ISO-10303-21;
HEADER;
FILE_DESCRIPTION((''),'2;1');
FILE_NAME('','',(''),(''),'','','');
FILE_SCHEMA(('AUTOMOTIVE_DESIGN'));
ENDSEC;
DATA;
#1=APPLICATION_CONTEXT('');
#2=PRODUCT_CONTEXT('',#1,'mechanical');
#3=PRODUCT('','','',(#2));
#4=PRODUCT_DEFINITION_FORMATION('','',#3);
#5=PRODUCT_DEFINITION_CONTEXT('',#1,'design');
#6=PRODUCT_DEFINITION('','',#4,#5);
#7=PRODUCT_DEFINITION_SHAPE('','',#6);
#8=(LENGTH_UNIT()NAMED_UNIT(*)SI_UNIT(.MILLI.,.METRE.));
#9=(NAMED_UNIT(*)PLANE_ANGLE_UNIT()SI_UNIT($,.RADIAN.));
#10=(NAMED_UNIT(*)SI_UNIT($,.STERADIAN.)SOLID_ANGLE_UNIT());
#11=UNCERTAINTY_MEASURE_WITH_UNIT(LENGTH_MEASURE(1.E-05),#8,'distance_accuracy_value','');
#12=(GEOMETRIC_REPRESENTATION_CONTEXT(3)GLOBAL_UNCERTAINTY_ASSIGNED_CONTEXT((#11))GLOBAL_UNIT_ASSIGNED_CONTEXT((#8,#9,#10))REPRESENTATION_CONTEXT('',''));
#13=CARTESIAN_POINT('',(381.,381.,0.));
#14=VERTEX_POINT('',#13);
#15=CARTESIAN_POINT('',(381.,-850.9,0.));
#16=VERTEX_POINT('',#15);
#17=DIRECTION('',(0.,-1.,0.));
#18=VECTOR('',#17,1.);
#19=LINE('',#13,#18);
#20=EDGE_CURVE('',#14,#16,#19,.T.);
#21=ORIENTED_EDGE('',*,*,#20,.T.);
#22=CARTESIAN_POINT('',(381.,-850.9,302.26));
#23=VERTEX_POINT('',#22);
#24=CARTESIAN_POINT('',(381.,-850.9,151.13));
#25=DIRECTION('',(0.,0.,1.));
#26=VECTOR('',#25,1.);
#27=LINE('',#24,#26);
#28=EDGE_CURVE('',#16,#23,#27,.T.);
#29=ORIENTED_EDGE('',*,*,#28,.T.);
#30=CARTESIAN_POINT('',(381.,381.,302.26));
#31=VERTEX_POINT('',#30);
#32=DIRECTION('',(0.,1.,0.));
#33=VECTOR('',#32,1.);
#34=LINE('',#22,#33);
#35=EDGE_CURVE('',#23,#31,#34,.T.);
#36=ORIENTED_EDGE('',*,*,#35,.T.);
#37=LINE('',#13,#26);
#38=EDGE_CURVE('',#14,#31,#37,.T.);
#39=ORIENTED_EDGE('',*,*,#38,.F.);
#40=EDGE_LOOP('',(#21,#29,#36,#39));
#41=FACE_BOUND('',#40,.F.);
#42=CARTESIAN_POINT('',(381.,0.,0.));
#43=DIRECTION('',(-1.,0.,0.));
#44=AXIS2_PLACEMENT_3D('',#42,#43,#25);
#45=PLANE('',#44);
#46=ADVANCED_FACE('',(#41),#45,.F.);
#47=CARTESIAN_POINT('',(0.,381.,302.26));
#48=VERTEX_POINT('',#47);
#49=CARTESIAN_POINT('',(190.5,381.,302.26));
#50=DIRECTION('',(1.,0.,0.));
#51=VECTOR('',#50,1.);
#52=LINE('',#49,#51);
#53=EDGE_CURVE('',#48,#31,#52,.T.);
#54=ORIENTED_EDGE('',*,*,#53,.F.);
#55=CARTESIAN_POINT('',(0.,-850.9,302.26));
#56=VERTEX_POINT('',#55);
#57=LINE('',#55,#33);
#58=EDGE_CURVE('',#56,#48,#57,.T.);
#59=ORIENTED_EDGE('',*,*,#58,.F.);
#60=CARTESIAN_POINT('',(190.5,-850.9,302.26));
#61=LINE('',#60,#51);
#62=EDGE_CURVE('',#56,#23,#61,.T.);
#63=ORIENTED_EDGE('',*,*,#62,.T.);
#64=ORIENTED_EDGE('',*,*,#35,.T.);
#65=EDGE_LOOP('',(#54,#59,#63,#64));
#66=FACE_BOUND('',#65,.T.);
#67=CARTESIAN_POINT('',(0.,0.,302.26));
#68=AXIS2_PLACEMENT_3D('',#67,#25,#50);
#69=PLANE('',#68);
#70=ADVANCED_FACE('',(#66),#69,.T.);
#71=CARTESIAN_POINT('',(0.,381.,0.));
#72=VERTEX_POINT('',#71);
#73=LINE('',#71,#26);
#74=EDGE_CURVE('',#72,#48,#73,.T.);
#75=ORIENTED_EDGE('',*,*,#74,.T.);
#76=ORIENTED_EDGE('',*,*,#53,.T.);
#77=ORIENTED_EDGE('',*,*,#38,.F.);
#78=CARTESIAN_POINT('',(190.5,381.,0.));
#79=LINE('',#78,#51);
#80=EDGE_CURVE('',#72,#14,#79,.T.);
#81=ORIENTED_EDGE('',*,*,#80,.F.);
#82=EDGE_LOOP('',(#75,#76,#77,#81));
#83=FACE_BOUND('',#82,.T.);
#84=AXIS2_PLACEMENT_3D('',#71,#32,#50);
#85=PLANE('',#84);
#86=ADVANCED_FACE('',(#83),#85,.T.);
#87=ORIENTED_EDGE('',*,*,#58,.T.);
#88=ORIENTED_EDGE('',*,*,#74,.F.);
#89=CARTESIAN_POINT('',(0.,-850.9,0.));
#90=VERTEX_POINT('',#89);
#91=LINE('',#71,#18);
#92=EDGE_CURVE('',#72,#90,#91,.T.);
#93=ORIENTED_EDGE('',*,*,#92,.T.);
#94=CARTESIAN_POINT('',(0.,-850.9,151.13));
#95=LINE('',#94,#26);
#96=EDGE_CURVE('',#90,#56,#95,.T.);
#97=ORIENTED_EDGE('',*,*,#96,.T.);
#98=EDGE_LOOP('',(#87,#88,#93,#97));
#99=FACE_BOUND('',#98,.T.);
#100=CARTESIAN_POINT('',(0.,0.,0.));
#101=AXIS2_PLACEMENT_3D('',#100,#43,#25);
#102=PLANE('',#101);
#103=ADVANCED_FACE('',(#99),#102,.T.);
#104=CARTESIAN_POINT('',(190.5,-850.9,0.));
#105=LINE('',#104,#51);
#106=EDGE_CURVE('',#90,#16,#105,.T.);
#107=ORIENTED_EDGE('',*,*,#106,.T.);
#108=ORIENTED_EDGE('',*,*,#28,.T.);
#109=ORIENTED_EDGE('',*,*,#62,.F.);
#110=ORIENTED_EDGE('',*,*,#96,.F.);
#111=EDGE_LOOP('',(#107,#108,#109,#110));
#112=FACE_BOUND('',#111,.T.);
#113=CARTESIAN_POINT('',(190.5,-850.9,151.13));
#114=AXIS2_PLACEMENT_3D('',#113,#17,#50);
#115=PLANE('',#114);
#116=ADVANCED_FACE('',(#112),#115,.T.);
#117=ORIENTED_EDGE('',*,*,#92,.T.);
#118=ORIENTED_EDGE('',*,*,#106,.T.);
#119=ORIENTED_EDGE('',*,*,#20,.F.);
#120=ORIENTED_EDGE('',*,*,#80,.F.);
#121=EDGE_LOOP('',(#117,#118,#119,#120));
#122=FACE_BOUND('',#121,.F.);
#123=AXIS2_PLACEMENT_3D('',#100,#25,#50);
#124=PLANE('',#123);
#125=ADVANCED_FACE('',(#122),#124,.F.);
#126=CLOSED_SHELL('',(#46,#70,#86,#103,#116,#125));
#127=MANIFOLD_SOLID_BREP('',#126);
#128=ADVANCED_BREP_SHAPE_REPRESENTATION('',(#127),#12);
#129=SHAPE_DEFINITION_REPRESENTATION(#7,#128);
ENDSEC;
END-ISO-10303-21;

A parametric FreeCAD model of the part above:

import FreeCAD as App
import Part
import Sketcher
Q = App.Units.Quantity


def add_polygon(sketch, points):
    """Adds a closed chain of lines whose ends are joined by coincident constraints."""
    first, n = sketch.GeometryCount, len(points)
    for a, b in zip(points, points[1:] + points[:1]):
        sketch.addGeometry(Part.LineSegment(App.Vector(*a, 0), App.Vector(*b, 0)), False)
    for i in range(n):
        sketch.addConstraint(Sketcher.Constraint("Coincident", first + i, 2, first + (i + 1) % n, 1))

doc = App.newDocument("Part")
params = doc.addObject("Spreadsheet::Sheet", "Params")
for row, (alias, value) in enumerate([
    ("sketch1_width", "15 in"),
    ("pad1_length", "11.9 in"),
    ("sketch2_width", "15 in"),
    ("sketch2_height", "11.9 in"),
    ("pad2_length", "33.5 in"),
], start=1):
    params.set(f"A{row}", alias)
    params.set(f"B{row}", "=" + value)
    params.setAlias(f"B{row}", alias)

body = doc.addObject("PartDesign::Body", "Body")

sketch1 = doc.addObject("Sketcher::SketchObject", "Sketch")
body.addObject(sketch1)
sketch1.AttachmentSupport = (doc.XY_Plane, [""])
sketch1.MapMode = "FlatFace"
add_polygon(sketch1, [(0, 381), (0, 0), (381, 0), (381, 381)])
sketch1.addConstraint(Sketcher.Constraint("Vertical", 0))
sketch1.addConstraint(Sketcher.Constraint("Horizontal", 1))
sketch1.addConstraint(Sketcher.Constraint("Vertical", 2))
sketch1.addConstraint(Sketcher.Constraint("Horizontal", 3))
sketch1.addConstraint(Sketcher.Constraint("Coincident", 0, 2, -1, 1))
sketch1.addConstraint(Sketcher.Constraint("Equal", 3, 0))
sketch1.addConstraint(Sketcher.Constraint("DistanceX", 1, 1, 1, 2, Q("15 in")))
sketch1.setExpression("Constraints[10]", "Params.sketch1_width")
pad1 = doc.addObject("PartDesign::Pad", "Pad")
body.addObject(pad1)
pad1.Profile = sketch1
pad1.setExpression("Length", "Params.pad1_length")

sketch2 = doc.addObject("Sketcher::SketchObject", "Sketch001")
body.addObject(sketch2)
sketch2.AttachmentSupport = (doc.XZ_Plane, [""])
sketch2.MapMode = "FlatFace"
add_polygon(sketch2, [(0, 302), (0, 0), (381, 0), (381, 302)])
sketch2.addConstraint(Sketcher.Constraint("Vertical", 0))
sketch2.addConstraint(Sketcher.Constraint("Horizontal", 1))
sketch2.addConstraint(Sketcher.Constraint("Vertical", 2))
sketch2.addConstraint(Sketcher.Constraint("Horizontal", 3))
sketch2.addConstraint(Sketcher.Constraint("Coincident", 0, 2, -1, 1))
sketch2.addConstraint(Sketcher.Constraint("DistanceX", 1, 1, 1, 2, Q("15 in")))
sketch2.addConstraint(Sketcher.Constraint("DistanceY", 0, 2, 0, 1, Q("11.9 in")))
sketch2.setExpression("Constraints[9]", "Params.sketch2_width")
sketch2.setExpression("Constraints[10]", "Params.sketch2_height")
pad2 = doc.addObject("PartDesign::Pad", "Pad001")
body.addObject(pad2)
pad2.Profile = sketch2
pad2.setExpression("Length", "Params.pad2_length")

doc.recompute()
